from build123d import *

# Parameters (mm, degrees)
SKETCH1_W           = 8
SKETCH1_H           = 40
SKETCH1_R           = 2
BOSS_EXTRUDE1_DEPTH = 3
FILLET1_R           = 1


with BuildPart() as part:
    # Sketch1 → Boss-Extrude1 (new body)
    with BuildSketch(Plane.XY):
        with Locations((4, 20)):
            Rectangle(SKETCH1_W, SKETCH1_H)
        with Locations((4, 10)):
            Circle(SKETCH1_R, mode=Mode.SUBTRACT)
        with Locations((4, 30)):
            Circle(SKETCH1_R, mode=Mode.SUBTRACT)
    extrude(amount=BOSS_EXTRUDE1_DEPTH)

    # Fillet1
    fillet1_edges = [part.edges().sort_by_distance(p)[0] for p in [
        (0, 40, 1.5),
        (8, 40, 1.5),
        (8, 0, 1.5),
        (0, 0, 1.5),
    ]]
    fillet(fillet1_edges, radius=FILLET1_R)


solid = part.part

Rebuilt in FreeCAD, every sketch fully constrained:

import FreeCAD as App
import Part
import Sketcher
from FreeCAD import Vector


def edges_at(feature, points):
    """Names of the edges that pass closest to the given points."""
    edges = feature.Shape.Edges
    near = lambda p: min(range(len(edges)), key=lambda i: edges[i].distToShape(Part.Vertex(*p))[0])
    return sorted({f"Edge{near(p) + 1}" for p in points})


def add_polygon(sketch, points):
    """Adds a closed chain of lines whose ends are joined by coincident constraints."""
    first, n = sketch.GeometryCount, len(points)
    for a, b in zip(points, points[1:] + points[:1]):
        sketch.addGeometry(Part.LineSegment(App.Vector(*a, 0), App.Vector(*b, 0)), False)
    for i in range(n):
        sketch.addConstraint(Sketcher.Constraint("Coincident", first + i, 2, first + (i + 1) % n, 1))

doc = App.newDocument("Part")
params = doc.addObject("Spreadsheet::Sheet", "Params")
for row, (alias, value) in enumerate([
    ("sketch1_diameter", "4 mm"),
    ("sketch1_width", "8 mm"),
    ("sketch1_height", "40 mm"),
    ("pad1_length", "3 mm"),
    ("fillet_radius", "1 mm"),
], start=1):
    params.set(f"A{row}", alias)
    params.set(f"B{row}", "=" + value)
    params.setAlias(f"B{row}", alias)

body = doc.addObject("PartDesign::Body", "Body")

# Sketch on XY plane
sketch1 = body.newObject("Sketcher::SketchObject", "Sketch")
sketch1.AttachmentSupport = (doc.getObject("XY_Plane"), [""])
sketch1.MapMode = "FlatFace"
add_polygon(sketch1, [(0, 40), (0, 0), (8, 0), (8, 40)])  # lines 0-3
sketch1.addGeometry(Part.Circle(Vector(4, 10, 0), Vector(0, 0, 1), 2), False)  # 4
sketch1.addGeometry(Part.Circle(Vector(4, 30, 0), Vector(0, 0, 1), 2), False)  # 5
sketch1.addConstraint([
    Sketcher.Constraint("Vertical", 0),
    Sketcher.Constraint("Horizontal", 1),
    Sketcher.Constraint("Vertical", 2),
    Sketcher.Constraint("Horizontal", 3),
    Sketcher.Constraint("Coincident", 0, 2, -1, 1),
    Sketcher.Constraint("Equal", 4, 5),
    Sketcher.Constraint("Vertical", 4, 3, 5, 3),
    Sketcher.Constraint("Diameter", 4, 4.0),
    Sketcher.Constraint("DistanceX", 1, 1, 1, 2, 8.0),
    Sketcher.Constraint("DistanceY", 0, 2, 0, 1, 40.0),
    Sketcher.Constraint("DistanceX", -1, 1, 4, 3, 4.0),
    Sketcher.Constraint("DistanceY", -1, 1, 4, 3, 10.0),
    Sketcher.Constraint("DistanceY", -1, 1, 5, 3, 30.0),
])
sketch1.setExpression("Constraints[11]", "Params.sketch1_diameter")
sketch1.setExpression("Constraints[12]", "Params.sketch1_width")
sketch1.setExpression("Constraints[13]", "Params.sketch1_height")
pad1 = body.newObject("PartDesign::Pad", "Pad")
pad1.Profile = sketch1
pad1.setExpression("Length", "Params.pad1_length")
doc.recompute()

fillet = body.newObject("PartDesign::Fillet", "Fillet")
fillet.Base = (pad1, edges_at(pad1, [
    (0, 40, 1.5),
    (8, 40, 1.5),
    (8, 0, 1.5),
    (0, 0, 1.5),
]))
fillet.setExpression("Radius", "Params.fillet_radius")

doc.recompute()
